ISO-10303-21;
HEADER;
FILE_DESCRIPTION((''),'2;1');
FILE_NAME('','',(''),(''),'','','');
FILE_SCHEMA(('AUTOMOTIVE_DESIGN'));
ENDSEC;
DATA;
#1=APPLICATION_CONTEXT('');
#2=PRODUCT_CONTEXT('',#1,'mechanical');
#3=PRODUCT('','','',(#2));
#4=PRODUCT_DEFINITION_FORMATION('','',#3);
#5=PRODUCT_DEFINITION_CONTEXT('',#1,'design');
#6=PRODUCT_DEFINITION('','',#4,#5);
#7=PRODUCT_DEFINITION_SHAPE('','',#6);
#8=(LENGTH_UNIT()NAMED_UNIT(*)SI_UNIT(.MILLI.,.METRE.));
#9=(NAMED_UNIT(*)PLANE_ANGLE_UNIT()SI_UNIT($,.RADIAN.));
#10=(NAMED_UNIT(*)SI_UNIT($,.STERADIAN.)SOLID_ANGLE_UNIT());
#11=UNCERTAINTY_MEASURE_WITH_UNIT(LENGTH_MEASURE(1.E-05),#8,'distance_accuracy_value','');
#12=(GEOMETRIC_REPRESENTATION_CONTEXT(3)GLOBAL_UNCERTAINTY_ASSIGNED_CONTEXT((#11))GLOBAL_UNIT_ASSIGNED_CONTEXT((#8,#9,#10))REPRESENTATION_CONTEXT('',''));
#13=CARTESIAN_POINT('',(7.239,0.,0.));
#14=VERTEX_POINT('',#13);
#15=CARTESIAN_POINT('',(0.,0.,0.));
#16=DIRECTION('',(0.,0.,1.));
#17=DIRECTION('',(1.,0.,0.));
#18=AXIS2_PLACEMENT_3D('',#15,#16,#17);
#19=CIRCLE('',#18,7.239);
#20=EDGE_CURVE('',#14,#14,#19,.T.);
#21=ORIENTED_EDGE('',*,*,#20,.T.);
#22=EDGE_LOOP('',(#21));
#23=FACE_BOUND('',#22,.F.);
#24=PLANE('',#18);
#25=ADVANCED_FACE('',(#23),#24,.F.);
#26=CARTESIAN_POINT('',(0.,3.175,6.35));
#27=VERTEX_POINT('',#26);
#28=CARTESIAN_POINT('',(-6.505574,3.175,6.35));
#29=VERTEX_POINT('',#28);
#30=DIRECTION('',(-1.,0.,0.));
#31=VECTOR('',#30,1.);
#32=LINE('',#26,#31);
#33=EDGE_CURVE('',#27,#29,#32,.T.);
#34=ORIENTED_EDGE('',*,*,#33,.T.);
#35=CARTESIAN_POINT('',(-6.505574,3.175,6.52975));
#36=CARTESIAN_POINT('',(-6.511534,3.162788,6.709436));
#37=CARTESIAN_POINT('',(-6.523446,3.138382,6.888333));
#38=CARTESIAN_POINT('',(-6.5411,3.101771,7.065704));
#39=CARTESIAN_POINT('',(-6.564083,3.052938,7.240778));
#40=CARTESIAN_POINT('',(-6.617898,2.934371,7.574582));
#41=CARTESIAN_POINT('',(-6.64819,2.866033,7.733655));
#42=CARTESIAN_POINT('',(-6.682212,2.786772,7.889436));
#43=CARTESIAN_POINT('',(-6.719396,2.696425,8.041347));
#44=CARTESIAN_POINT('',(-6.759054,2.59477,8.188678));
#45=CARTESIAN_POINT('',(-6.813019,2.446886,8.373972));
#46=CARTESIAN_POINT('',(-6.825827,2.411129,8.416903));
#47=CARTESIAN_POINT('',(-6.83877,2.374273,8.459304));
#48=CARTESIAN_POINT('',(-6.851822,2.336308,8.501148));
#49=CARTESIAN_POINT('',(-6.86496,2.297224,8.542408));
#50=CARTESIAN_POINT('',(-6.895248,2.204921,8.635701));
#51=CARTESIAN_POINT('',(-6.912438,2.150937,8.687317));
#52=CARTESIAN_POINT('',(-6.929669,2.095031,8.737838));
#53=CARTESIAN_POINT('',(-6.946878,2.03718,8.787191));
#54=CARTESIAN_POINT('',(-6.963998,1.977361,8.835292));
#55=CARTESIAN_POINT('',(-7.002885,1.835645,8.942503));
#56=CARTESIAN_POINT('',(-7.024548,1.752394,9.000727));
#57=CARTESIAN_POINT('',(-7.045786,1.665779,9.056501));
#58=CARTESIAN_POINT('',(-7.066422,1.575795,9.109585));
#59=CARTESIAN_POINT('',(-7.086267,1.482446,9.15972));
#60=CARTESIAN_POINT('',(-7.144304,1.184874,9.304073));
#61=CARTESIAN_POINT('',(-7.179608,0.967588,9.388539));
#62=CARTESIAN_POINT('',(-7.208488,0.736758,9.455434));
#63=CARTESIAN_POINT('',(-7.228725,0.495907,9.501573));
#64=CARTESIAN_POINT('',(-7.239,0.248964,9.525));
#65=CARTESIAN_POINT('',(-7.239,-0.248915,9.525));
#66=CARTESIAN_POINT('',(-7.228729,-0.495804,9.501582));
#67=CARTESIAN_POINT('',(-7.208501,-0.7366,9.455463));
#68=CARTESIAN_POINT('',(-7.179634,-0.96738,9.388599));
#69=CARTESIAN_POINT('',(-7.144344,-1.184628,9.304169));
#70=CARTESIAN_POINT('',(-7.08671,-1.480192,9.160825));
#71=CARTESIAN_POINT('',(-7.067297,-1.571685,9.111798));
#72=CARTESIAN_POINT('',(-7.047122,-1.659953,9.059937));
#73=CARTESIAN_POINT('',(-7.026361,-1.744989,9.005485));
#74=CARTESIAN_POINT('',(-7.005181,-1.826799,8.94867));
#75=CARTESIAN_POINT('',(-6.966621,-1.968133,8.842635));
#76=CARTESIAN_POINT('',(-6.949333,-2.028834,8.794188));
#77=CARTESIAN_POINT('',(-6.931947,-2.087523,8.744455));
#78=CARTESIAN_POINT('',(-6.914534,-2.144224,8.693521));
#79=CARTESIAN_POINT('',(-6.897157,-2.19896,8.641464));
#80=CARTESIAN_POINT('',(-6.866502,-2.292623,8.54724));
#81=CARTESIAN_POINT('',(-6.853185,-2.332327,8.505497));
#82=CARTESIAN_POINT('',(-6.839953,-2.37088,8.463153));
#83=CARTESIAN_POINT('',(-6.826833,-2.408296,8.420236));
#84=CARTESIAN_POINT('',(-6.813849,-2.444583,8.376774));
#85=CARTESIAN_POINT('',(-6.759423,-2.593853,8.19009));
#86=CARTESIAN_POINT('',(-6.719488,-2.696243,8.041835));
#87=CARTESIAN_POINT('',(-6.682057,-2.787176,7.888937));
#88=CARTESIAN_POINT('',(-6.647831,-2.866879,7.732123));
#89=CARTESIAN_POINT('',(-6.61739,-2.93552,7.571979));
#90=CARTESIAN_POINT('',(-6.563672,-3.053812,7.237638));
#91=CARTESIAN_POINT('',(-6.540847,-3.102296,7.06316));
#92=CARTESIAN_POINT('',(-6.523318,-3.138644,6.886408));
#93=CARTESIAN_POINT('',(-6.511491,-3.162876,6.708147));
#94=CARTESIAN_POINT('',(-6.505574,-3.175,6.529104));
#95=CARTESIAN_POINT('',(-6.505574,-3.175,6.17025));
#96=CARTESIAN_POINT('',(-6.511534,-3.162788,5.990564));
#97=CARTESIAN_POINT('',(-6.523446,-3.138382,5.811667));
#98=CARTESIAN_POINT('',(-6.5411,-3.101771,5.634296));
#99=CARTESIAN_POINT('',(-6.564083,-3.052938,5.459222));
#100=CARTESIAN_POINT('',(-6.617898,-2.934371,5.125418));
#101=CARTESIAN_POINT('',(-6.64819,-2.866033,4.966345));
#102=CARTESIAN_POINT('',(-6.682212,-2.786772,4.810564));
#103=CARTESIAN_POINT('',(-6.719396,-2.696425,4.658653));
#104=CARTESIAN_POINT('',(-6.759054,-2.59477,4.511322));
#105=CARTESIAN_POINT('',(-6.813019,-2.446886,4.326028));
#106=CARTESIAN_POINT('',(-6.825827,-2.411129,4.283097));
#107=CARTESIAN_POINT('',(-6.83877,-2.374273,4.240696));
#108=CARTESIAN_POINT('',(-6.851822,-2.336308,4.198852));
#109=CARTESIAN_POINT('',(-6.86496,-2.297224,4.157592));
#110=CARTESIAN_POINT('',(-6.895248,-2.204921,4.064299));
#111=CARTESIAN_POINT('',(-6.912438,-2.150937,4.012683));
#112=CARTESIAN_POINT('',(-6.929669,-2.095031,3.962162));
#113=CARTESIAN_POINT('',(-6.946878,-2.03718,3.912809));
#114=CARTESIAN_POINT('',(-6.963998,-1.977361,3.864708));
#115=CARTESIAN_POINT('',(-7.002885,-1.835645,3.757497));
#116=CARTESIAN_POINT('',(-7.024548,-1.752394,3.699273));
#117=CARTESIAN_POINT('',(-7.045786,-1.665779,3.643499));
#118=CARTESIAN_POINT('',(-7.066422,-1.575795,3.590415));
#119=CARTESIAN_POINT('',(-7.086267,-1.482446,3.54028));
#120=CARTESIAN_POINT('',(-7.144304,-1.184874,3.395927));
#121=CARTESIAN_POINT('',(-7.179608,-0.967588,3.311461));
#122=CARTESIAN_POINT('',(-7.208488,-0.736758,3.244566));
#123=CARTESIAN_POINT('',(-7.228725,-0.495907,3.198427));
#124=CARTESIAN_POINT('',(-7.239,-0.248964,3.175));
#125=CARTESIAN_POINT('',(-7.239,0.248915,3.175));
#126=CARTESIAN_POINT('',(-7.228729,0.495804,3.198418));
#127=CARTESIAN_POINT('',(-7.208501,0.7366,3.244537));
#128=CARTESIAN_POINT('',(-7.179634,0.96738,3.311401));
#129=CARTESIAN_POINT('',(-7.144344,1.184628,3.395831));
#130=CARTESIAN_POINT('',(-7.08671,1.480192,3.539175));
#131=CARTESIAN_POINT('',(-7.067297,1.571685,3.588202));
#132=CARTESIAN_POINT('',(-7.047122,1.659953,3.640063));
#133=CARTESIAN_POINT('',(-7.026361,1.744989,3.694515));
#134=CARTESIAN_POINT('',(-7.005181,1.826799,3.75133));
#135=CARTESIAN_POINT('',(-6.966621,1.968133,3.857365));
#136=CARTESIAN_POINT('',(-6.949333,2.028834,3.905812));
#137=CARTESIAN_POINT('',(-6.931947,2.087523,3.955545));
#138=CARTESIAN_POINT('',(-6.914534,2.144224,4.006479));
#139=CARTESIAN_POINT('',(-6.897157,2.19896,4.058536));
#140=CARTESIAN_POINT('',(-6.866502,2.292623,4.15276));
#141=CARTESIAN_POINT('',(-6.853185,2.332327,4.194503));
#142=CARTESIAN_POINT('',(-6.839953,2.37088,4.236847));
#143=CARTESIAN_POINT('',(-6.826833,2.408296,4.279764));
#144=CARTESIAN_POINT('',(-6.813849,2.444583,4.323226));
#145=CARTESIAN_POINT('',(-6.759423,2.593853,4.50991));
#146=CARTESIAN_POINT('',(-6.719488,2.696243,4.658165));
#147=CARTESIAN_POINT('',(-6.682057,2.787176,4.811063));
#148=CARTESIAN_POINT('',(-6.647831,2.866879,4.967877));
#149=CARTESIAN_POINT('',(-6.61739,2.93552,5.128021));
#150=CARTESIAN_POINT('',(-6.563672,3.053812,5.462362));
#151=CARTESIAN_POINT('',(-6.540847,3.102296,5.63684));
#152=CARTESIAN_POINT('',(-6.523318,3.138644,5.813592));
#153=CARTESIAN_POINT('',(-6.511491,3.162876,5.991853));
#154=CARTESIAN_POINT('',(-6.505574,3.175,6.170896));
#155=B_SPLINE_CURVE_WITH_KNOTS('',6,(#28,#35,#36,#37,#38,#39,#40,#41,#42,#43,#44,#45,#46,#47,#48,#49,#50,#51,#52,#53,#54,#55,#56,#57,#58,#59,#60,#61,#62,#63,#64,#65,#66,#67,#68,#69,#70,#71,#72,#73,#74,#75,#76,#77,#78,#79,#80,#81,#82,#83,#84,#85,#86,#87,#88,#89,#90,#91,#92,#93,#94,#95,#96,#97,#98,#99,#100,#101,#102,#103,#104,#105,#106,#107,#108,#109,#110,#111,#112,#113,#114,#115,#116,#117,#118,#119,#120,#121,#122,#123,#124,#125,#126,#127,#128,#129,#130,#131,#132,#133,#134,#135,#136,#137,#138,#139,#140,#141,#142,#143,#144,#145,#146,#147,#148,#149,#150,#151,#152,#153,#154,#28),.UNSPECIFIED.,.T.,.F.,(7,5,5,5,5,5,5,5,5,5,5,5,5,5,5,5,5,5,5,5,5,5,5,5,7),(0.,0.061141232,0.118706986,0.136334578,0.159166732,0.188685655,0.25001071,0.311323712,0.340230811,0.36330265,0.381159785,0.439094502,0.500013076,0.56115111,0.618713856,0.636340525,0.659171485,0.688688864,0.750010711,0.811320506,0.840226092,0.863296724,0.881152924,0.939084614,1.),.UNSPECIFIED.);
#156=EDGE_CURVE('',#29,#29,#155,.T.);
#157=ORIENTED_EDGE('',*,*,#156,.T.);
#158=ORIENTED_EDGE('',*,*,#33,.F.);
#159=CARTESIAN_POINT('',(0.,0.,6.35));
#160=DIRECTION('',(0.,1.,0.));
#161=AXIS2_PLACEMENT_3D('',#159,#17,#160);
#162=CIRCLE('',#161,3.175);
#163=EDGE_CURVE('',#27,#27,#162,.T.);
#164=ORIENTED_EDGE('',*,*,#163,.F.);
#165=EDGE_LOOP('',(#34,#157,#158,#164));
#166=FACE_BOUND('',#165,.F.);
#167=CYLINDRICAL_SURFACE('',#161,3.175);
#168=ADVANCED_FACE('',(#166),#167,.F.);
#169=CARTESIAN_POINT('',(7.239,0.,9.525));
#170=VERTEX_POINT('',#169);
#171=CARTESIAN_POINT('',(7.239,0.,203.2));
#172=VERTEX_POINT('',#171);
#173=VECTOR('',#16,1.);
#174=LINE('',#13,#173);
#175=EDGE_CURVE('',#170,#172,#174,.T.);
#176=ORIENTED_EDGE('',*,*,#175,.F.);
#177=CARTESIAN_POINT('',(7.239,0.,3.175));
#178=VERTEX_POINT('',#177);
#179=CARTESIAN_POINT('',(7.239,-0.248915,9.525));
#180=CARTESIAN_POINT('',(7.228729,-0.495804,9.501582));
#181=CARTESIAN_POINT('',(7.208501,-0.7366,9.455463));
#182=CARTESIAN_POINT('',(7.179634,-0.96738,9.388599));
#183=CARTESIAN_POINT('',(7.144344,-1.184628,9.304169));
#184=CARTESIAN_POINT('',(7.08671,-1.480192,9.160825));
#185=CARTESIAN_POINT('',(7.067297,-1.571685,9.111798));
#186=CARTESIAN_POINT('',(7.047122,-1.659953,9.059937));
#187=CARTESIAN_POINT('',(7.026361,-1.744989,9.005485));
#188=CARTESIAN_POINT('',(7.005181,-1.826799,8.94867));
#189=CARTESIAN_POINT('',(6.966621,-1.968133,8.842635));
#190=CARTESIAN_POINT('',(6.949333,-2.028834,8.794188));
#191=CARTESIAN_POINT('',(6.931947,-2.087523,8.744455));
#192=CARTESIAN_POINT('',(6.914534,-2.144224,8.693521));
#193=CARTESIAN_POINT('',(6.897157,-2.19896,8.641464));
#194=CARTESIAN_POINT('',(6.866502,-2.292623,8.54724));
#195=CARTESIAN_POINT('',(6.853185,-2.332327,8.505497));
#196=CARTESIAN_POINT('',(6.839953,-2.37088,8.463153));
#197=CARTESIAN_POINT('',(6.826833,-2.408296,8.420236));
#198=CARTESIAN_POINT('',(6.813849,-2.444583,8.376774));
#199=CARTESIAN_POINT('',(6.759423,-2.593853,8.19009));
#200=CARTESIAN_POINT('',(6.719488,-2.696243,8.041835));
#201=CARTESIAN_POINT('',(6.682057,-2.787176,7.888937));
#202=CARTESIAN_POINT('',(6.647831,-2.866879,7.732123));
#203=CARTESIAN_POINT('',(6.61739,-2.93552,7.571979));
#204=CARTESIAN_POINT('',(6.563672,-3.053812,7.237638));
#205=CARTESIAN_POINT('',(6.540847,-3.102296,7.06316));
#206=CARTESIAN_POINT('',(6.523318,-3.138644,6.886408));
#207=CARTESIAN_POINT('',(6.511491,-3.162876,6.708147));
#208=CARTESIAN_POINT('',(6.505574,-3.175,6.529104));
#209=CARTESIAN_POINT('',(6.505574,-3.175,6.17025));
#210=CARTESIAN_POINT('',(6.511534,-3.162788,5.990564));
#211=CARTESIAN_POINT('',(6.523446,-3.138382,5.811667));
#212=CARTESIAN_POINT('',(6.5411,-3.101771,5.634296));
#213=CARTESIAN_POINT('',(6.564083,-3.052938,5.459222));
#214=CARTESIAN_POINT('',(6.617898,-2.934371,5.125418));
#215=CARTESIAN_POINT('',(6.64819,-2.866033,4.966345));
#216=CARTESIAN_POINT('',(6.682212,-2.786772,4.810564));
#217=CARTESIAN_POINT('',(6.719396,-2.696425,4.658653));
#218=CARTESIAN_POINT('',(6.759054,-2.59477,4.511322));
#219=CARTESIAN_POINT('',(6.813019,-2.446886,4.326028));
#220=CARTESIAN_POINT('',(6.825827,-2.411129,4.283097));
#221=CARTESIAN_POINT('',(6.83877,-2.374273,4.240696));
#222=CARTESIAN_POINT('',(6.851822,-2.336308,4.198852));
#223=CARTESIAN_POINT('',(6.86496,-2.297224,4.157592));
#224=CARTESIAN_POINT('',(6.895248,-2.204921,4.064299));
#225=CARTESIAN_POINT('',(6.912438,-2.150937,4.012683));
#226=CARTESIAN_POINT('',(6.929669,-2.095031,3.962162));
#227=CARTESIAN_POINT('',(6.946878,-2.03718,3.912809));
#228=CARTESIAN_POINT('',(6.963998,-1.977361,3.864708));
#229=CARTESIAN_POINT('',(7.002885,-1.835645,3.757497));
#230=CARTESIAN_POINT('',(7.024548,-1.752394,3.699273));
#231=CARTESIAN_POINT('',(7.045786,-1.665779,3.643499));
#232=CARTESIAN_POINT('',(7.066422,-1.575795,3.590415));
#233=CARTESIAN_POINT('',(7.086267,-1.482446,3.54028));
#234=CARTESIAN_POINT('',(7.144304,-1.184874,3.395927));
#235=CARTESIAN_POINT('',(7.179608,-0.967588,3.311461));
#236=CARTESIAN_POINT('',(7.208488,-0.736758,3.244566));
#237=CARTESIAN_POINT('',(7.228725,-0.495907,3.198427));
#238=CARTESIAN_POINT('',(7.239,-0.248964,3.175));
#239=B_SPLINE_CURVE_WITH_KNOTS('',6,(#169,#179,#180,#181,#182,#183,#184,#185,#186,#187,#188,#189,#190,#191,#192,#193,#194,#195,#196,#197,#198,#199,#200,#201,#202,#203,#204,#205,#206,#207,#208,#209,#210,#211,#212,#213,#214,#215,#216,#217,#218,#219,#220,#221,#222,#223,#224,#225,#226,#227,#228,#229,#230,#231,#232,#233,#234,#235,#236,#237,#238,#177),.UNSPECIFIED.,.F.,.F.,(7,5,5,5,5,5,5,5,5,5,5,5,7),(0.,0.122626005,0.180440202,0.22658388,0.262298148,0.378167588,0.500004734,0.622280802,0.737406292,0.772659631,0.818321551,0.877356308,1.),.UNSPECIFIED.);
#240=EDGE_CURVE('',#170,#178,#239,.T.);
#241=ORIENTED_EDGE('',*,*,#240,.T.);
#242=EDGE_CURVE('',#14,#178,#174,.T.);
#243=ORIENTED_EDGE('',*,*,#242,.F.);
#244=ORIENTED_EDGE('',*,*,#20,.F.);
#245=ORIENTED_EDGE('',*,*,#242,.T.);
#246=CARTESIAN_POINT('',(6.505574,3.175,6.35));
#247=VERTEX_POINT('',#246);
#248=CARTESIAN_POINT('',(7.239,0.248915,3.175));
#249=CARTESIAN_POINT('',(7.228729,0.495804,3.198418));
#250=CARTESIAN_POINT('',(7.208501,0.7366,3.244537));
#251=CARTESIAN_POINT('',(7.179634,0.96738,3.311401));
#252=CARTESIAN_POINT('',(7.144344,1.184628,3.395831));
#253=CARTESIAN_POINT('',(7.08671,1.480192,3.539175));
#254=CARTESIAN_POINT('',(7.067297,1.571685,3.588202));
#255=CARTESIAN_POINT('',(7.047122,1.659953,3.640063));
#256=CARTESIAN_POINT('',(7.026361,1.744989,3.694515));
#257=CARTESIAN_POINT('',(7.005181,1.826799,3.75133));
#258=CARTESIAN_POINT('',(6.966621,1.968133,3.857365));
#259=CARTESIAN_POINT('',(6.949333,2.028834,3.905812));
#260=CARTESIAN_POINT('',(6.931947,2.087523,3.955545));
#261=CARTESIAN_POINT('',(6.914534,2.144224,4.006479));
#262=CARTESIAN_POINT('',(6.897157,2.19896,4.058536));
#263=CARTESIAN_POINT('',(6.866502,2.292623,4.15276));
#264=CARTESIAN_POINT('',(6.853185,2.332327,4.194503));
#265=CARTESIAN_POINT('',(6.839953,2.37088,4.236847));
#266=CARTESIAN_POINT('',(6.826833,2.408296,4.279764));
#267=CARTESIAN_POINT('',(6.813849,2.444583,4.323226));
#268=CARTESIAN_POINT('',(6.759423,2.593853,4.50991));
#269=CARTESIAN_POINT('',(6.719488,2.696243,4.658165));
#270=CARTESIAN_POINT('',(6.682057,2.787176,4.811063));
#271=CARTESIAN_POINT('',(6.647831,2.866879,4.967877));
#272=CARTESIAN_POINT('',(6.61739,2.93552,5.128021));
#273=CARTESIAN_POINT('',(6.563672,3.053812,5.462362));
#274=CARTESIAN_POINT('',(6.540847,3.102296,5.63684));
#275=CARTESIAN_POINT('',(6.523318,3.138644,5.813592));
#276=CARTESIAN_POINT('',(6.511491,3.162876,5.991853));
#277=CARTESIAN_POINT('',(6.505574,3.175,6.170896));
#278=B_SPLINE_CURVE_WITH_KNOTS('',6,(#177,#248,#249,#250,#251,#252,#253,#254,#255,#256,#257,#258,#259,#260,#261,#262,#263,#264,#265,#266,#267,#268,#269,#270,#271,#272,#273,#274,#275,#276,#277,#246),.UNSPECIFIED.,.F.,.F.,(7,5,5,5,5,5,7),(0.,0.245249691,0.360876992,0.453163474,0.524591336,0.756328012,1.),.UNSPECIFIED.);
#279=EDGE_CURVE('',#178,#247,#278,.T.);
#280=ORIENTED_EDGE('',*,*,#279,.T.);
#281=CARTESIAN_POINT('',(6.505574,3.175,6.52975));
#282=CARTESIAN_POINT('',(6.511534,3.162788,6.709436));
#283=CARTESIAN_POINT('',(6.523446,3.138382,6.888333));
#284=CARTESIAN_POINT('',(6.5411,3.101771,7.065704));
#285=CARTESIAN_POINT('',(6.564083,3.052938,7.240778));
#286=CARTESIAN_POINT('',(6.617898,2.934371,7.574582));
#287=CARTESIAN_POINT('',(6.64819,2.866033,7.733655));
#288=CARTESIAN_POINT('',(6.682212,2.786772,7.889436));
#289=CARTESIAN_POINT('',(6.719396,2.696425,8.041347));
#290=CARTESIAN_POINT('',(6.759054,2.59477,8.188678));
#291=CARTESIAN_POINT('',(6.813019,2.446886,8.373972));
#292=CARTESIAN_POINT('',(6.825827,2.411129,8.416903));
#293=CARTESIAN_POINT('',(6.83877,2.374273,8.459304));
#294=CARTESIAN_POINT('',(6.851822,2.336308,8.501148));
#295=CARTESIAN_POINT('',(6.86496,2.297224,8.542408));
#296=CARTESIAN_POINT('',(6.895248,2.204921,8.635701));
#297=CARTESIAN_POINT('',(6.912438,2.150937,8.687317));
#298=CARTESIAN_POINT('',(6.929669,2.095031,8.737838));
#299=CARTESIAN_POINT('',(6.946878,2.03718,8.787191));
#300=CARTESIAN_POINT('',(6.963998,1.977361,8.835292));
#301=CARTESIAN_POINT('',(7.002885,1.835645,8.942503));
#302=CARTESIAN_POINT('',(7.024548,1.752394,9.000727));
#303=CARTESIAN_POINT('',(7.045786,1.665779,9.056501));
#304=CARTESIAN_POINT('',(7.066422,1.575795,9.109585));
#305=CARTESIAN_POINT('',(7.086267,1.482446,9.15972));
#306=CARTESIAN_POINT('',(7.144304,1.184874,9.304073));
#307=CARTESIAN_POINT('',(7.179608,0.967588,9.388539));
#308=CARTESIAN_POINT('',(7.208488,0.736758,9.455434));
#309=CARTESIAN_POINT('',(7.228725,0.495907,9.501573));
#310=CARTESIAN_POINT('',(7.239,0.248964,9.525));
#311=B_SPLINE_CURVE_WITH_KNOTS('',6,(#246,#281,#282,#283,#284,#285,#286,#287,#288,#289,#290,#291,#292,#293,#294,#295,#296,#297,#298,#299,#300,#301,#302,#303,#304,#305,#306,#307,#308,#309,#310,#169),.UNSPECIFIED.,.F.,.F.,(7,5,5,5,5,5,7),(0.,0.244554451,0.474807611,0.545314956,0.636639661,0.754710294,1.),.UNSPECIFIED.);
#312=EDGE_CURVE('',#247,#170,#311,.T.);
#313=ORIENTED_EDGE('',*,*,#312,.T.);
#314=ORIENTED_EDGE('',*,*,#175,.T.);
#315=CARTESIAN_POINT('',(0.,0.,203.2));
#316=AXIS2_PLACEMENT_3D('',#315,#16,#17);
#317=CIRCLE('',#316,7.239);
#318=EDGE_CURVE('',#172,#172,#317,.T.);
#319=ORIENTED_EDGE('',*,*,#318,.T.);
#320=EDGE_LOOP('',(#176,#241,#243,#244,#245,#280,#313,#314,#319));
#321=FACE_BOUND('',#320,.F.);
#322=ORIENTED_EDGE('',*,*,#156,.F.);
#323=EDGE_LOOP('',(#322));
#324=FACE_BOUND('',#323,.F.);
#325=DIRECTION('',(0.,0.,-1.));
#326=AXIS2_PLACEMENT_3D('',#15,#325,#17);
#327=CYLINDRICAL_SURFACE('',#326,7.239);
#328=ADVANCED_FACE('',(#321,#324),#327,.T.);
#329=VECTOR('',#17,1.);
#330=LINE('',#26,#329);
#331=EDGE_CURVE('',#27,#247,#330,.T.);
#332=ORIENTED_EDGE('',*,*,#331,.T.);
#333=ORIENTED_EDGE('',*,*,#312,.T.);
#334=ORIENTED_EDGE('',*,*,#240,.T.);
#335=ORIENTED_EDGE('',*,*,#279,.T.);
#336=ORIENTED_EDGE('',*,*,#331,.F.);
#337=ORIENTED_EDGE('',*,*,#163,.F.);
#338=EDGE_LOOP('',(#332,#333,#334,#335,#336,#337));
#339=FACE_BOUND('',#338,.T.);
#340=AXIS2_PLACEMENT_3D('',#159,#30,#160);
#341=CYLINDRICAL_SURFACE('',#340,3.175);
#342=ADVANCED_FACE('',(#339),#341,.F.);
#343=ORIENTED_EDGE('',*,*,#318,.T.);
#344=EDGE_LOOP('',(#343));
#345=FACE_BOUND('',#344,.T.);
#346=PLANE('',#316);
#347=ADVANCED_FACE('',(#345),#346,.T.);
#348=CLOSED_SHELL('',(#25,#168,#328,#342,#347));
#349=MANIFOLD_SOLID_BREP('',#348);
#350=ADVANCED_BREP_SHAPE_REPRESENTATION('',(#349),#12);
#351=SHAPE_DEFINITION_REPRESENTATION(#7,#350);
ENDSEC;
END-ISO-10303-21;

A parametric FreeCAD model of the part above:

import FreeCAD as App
import Part
import Sketcher
Q = App.Units.Quantity

doc = App.newDocument("Part")
body = doc.addObject("PartDesign::Body", "Body")

sketch1 = doc.addObject("Sketcher::SketchObject", "Sketch")
body.addObject(sketch1)
sketch1.AttachmentSupport = (doc.XY_Plane, [""])
sketch1.MapMode = "FlatFace"
sketch1.addGeometry(Part.Circle(App.Vector(0, 0, 0), App.Vector(0, 0, 1), 7), False)
sketch1.addConstraint([
    Sketcher.Constraint("Coincident", 0, 3, -1, 1),
    Sketcher.Constraint("Diameter", 0, Q("0.57 in")),
])
pad1 = doc.addObject("PartDesign::Pad", "Pad")
body.addObject(pad1)
pad1.Profile = sketch1
pad1.Length = Q("8 in")

sketch2 = doc.addObject("Sketcher::SketchObject", "Sketch001")
body.addObject(sketch2)
sketch2.AttachmentSupport = (doc.YZ_Plane, [""])
sketch2.MapMode = "FlatFace"
sketch2.addGeometry(Part.Circle(App.Vector(0, 6.3, 0), App.Vector(0, 0, 1), 3.2), False)
sketch2.addConstraint([
    Sketcher.Constraint("PointOnObject", 0, 3, -2),
    Sketcher.Constraint("Diameter", 0, Q("0.25 in")),
    Sketcher.Constraint("DistanceY", -1, 1, 0, 3, Q("0.25 in")),
])
pocket1 = doc.addObject("PartDesign::Pocket", "Pocket")
body.addObject(pocket1)
pocket1.Profile = sketch2
pocket1.Type = "ThroughAll"
pocket1.Midplane = True

doc.recompute()
